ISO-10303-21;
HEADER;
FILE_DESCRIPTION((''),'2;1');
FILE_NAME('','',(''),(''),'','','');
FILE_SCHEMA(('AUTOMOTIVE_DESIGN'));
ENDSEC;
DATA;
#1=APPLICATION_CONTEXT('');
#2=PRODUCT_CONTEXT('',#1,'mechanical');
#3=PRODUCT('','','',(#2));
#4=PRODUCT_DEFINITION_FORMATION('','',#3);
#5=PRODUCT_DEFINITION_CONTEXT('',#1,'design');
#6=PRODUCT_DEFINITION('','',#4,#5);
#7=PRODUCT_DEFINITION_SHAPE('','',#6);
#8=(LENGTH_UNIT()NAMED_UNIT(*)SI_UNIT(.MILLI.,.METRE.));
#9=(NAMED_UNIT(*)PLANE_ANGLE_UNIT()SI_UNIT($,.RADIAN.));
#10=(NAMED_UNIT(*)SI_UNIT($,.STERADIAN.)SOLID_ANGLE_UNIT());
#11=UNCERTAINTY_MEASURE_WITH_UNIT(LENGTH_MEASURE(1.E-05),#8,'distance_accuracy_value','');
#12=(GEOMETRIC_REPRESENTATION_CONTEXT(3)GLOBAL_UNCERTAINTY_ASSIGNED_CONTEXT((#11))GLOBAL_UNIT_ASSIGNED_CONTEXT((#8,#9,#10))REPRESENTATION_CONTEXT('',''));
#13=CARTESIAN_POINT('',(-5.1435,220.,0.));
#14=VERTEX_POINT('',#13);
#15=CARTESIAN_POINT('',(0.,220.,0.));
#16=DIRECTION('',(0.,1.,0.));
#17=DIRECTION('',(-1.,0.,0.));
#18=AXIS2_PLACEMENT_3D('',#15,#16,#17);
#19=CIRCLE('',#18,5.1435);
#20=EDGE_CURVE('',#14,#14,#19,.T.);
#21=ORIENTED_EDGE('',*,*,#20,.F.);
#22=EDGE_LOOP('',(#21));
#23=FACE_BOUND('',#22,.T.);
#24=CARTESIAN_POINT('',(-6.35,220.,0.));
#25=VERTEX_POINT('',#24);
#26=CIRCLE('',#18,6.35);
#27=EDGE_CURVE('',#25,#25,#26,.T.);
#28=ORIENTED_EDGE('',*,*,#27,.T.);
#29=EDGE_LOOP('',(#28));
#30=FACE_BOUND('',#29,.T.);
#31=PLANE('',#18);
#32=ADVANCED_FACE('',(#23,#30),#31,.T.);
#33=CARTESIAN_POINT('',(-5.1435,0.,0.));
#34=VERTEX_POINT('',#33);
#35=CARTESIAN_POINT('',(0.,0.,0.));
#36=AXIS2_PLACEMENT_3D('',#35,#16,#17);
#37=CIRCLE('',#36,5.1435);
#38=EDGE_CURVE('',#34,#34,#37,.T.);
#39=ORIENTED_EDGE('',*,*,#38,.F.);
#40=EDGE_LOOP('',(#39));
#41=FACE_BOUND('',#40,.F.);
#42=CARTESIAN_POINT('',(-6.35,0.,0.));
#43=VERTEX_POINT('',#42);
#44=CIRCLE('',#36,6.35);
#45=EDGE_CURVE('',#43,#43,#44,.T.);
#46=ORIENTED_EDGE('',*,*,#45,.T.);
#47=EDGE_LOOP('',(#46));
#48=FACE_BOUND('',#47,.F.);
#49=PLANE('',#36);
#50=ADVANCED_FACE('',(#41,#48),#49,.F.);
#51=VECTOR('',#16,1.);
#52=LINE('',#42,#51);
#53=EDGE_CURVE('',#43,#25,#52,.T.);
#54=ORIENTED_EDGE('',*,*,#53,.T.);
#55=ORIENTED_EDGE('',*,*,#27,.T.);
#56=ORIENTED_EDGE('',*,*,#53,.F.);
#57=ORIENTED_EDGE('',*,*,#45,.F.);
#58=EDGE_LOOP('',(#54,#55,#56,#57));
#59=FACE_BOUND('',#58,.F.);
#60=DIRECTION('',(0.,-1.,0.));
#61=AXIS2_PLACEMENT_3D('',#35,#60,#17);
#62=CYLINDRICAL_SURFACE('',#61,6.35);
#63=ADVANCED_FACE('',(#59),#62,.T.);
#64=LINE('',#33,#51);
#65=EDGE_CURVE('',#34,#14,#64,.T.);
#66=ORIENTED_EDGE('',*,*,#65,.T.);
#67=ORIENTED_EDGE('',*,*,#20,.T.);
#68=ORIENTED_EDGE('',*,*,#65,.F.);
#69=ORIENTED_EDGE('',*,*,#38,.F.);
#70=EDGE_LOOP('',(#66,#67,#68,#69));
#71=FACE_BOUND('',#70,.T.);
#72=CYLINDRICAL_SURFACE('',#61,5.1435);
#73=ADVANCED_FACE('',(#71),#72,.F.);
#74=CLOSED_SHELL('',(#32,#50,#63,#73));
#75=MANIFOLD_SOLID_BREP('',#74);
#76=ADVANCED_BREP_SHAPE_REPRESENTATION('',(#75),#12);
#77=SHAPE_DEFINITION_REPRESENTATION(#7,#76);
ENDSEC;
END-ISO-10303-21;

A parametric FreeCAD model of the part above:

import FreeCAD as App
import Part
import Sketcher
from FreeCAD import Vector
Q = App.Units.Quantity

doc = App.newDocument("Part")
body = doc.addObject("PartDesign::Body", "Body")

# Sketch on XZ plane
sketch1 = body.newObject("Sketcher::SketchObject", "Sketch")
sketch1.AttachmentSupport = (doc.getObject("XZ_Plane"), [""])
sketch1.MapMode = "FlatFace"
sketch1.addGeometry(Part.Circle(Vector(0, 0, 0), Vector(0, 0, 1), 6), False)
sketch1.addGeometry(Part.Circle(Vector(0, 0, 0), Vector(0, 0, 1), 5), False)
sketch1.addConstraint(Sketcher.Constraint("Coincident", 0, 3, -1, 1))
sketch1.addConstraint(Sketcher.Constraint("Coincident", 1, 3, -1, 1))
sketch1.addConstraint(Sketcher.Constraint("Diameter", 0, Q("0.5 in")))
sketch1.addConstraint(Sketcher.Constraint("Diameter", 1, Q("0.405 in")))
pad1 = body.newObject("PartDesign::Pad", "Pad")
pad1.Profile = sketch1
pad1.Length = 220
pad1.Reversed = True

doc.recompute()
